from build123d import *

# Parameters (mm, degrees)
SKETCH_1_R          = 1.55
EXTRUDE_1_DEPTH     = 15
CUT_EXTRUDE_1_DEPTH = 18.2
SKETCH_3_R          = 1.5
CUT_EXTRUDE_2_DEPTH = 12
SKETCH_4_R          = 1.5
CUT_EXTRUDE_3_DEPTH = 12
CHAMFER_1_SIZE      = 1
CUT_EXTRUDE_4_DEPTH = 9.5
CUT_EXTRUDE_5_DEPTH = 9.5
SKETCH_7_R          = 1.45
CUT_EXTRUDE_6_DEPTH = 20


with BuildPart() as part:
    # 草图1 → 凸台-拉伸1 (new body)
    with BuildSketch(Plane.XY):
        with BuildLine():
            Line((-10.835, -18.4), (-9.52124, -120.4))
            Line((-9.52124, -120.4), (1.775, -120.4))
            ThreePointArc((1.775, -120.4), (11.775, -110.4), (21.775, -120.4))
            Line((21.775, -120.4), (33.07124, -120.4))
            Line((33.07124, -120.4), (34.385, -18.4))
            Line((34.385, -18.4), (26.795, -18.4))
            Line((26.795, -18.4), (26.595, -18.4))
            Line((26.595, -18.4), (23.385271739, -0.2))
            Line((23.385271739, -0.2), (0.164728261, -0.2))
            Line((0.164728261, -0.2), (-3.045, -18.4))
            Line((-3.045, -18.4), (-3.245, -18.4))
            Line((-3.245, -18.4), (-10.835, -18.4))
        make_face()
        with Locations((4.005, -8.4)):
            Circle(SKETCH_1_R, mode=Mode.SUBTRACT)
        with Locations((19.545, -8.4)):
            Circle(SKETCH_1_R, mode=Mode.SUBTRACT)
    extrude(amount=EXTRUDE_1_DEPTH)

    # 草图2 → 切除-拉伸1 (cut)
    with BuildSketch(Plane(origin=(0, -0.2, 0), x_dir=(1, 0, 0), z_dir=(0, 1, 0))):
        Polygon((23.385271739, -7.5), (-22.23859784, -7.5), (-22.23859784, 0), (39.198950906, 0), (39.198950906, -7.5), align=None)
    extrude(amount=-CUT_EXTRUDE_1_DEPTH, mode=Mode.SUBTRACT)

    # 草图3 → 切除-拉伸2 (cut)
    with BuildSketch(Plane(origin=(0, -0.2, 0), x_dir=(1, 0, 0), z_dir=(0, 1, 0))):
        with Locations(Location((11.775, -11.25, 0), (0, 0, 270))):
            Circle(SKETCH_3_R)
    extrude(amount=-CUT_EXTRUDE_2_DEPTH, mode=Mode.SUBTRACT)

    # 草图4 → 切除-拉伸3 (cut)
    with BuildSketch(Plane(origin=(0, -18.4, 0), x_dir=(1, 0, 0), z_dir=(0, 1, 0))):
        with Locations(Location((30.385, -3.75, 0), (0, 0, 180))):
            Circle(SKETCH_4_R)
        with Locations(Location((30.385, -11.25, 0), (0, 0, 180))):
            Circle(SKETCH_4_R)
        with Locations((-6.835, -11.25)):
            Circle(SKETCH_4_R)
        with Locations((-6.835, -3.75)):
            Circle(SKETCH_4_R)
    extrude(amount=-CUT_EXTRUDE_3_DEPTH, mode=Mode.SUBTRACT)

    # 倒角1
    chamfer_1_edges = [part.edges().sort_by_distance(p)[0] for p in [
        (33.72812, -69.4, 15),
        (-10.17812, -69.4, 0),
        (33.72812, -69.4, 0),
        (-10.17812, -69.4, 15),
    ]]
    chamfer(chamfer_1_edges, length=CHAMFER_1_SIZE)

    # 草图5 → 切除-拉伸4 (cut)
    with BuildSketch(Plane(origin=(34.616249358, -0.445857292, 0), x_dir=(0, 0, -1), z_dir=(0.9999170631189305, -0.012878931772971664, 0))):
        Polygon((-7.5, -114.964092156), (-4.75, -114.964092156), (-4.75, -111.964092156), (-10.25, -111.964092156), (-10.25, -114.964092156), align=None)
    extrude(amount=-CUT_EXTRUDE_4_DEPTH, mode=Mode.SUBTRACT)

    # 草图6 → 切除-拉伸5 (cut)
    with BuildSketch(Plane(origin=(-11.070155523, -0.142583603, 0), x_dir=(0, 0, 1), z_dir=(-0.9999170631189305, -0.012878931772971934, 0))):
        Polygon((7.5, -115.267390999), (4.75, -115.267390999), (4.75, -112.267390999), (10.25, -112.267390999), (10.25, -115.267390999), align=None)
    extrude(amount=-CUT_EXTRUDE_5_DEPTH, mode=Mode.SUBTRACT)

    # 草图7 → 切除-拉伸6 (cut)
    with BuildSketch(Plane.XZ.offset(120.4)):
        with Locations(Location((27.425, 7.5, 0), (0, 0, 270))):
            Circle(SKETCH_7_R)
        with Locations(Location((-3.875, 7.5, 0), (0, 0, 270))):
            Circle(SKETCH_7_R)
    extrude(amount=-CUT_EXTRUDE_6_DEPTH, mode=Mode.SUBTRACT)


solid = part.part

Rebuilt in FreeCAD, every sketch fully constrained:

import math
import FreeCAD as App
import Part
import Sketcher
Q = App.Units.Quantity


def edges_at(feature, points):
    """Names of the edges that pass closest to the given points."""
    edges = feature.Shape.Edges
    near = lambda p: min(range(len(edges)), key=lambda i: edges[i].distToShape(Part.Vertex(*p))[0])
    return sorted({f"Edge{near(p) + 1}" for p in points})

doc = App.newDocument("Part")
body = doc.addObject("PartDesign::Body", "Body")

# Sketch on XY plane
sketch1 = body.newObject("Sketcher::SketchObject", "Sketch")
sketch1.AttachmentSupport = (doc.getObject("XY_Plane"), [""])
sketch1.MapMode = "FlatFace"
sketch1.addGeometry([
    Part.LineSegment(App.Vector(-10.8, -18.4, 0), App.Vector(-9.5, -120.4, 0)),  # 0
    Part.LineSegment(App.Vector(-9.5, -120.4, 0), App.Vector(1.8, -120.4, 0)),  # 1
    Part.ArcOfCircle(Part.Circle(App.Vector(11.8, -120.4, 0), App.Vector(0, 0, 1), 10), math.radians(0), math.radians(180)),  # 2
    Part.LineSegment(App.Vector(21.8, -120.4, 0), App.Vector(33.1, -120.4, 0)),  # 3
    Part.LineSegment(App.Vector(33.1, -120.4, 0), App.Vector(34.4, -18.4, 0)),  # 4
    Part.LineSegment(App.Vector(34.4, -18.4, 0), App.Vector(26.6, -18.4, 0)),  # 5
    Part.LineSegment(App.Vector(26.6, -18.4, 0), App.Vector(23.4, -0.2, 0)),  # 6
    Part.LineSegment(App.Vector(23.4, -0.2, 0), App.Vector(0.2, -0.2, 0)),  # 7
    Part.LineSegment(App.Vector(0.2, -0.2, 0), App.Vector(-3, -18.4, 0)),  # 8
    Part.LineSegment(App.Vector(-3, -18.4, 0), App.Vector(-10.8, -18.4, 0)),  # 9
    Part.Circle(App.Vector(4, -8.4, 0), App.Vector(0, 0, 1), 1.6),  # 10
    Part.Circle(App.Vector(19.5, -8.4, 0), App.Vector(0, 0, 1), 1.6),  # 11
], False)
sketch1.addConstraint([
    Sketcher.Constraint("Coincident", 0, 2, 1, 1),
    Sketcher.Constraint("Coincident", 1, 2, 2, 2),
    Sketcher.Constraint("Coincident", 2, 1, 3, 1),
    Sketcher.Constraint("Coincident", 3, 2, 4, 1),
    Sketcher.Constraint("Coincident", 4, 2, 5, 1),
    Sketcher.Constraint("Coincident", 5, 2, 6, 1),
    Sketcher.Constraint("Coincident", 6, 2, 7, 1),
    Sketcher.Constraint("Coincident", 7, 2, 8, 1),
    Sketcher.Constraint("Coincident", 8, 2, 9, 1),
    Sketcher.Constraint("Coincident", 9, 2, 0, 1),
    Sketcher.Constraint("Horizontal", 1),
    Sketcher.Constraint("Horizontal", 3),
    Sketcher.Constraint("Horizontal", 5),
    Sketcher.Constraint("Horizontal", 7),
    Sketcher.Constraint("Horizontal", 9),
    Sketcher.Constraint("Equal", 10, 11),
    Sketcher.Constraint("Horizontal", 10, 3, 11, 3),
    Sketcher.Constraint("Horizontal", 2, 3, 0, 2),
    Sketcher.Constraint("Horizontal", 1, 2, 2, 1),
    Sketcher.Constraint("Horizontal", 5, 2, 8, 2),
    Sketcher.Constraint("Equal", 1, 3),
    Sketcher.Constraint("Equal", 5, 9),
    Sketcher.Constraint("Equal", 0, 4),
    Sketcher.Constraint("Equal", 6, 8),
    Sketcher.Constraint("Radius", 2, Q("10 mm")),
    Sketcher.Constraint("Diameter", 10, Q("3.1 mm")),
    Sketcher.Constraint("DistanceY", 2, 3, 10, 3, Q("112 mm")),
    Sketcher.Constraint("DistanceY", 4, 2, 11, 3, Q("10 mm")),
    Sketcher.Constraint("DistanceX", 5, 2, 5, 1, Q("7.79 mm")),
    Sketcher.Constraint("DistanceY", 2, 3, -1, 1, Q("120.4 mm")),
    Sketcher.Constraint("DistanceY", 6, 2, -1, 1, Q("0.2 mm")),
    Sketcher.Constraint("DistanceX", 10, 3, 2, 3, Q("7.77 mm")),
    Sketcher.Constraint("DistanceX", 10, 3, 11, 3, Q("15.54 mm")),
    Sketcher.Constraint("DistanceX", 11, 3, 4, 2, Q("14.84 mm")),
    Sketcher.Constraint("DistanceX", -1, 1, 2, 3, Q("11.775 mm")),
    Sketcher.Constraint("DistanceX", 1, 1, 1, 2, Q("11.29624 mm")),
    Sketcher.Constraint("DistanceX", 7, 2, 7, 1, Q("23.220543 mm")),
])
pad1 = body.newObject("PartDesign::Pad", "Pad")
pad1.Profile = sketch1
pad1.Length = 15

# Sketch on XZ plane
sketch2 = body.newObject("Sketcher::SketchObject", "Sketch001")
sketch2.AttachmentSupport = (doc.getObject("XZ_Plane"), [""])
sketch2.MapMode = "FlatFace"
sketch2.AttachmentOffset = App.Placement(App.Vector(0, 0, 0.2), App.Rotation())
sketch2.addGeometry([
    Part.LineSegment(App.Vector(-22, 8, 0), App.Vector(39, 8, 0)),
    Part.LineSegment(App.Vector(39, 8, 0), App.Vector(39, 0, 0)),
    Part.LineSegment(App.Vector(39, 0, 0), App.Vector(-22, 0, 0)),
    Part.LineSegment(App.Vector(-22, 0, 0), App.Vector(-22, 8, 0)),
], False)
sketch2.addConstraint([
    Sketcher.Constraint("Coincident", 0, 2, 1, 1),
    Sketcher.Constraint("Coincident", 1, 2, 2, 1),
    Sketcher.Constraint("Coincident", 2, 2, 3, 1),
    Sketcher.Constraint("Coincident", 3, 2, 0, 1),
    Sketcher.Constraint("Horizontal", 0),
    Sketcher.Constraint("Vertical", 1),
    Sketcher.Constraint("Horizontal", 2),
    Sketcher.Constraint("Vertical", 3),
    Sketcher.Constraint("PointOnObject", 1, 2, -1),
    Sketcher.Constraint("DistanceY", 1, 2, 1, 1, Q("7.5 mm")),
    Sketcher.Constraint("DistanceX", 0, 1, 0, 2, Q("61.437549 mm")),
    Sketcher.Constraint("DistanceX", -1, 1, 0, 2, Q("39.198951 mm")),
])
pocket1 = body.newObject("PartDesign::Pocket", "Pocket")
pocket1.Profile = sketch2
pocket1.Length = 18.2
pocket1.Reversed = True

# Sketch on XZ plane
sketch3 = body.newObject("Sketcher::SketchObject", "Sketch002")
sketch3.AttachmentSupport = (doc.getObject("XZ_Plane"), [""])
sketch3.MapMode = "FlatFace"
sketch3.AttachmentOffset = App.Placement(App.Vector(0, 0, 0.2), App.Rotation())
sketch3.addGeometry(Part.Circle(App.Vector(11.8, 11.2, 0), App.Vector(0, 0, 1), 1.5), False)
sketch3.addConstraint([
    Sketcher.Constraint("Diameter", 0, Q("3 mm")),
    Sketcher.Constraint("DistanceY", -1, 1, 0, 3, Q("11.25 mm")),
    Sketcher.Constraint("DistanceX", -1, 1, 0, 3, Q("11.775 mm")),
])
pocket2 = body.newObject("PartDesign::Pocket", "Pocket001")
pocket2.Profile = sketch3
pocket2.Length = 12
pocket2.Reversed = True

# Sketch on XZ plane
sketch4 = body.newObject("Sketcher::SketchObject", "Sketch003")
sketch4.AttachmentSupport = (doc.getObject("XZ_Plane"), [""])
sketch4.MapMode = "FlatFace"
sketch4.AttachmentOffset = App.Placement(App.Vector(0, 0, 18.4), App.Rotation())
sketch4.addGeometry([
    Part.Circle(App.Vector(30.4, 3.8, 0), App.Vector(0, 0, 1), 1.5),
    Part.Circle(App.Vector(30.4, 11.2, 0), App.Vector(0, 0, 1), 1.5),
    Part.Circle(App.Vector(-6.8, 11.2, 0), App.Vector(0, 0, 1), 1.5),
    Part.Circle(App.Vector(-6.8, 3.8, 0), App.Vector(0, 0, 1), 1.5),
], False)
sketch4.addConstraint([
    Sketcher.Constraint("Equal", 0, 1),
    Sketcher.Constraint("Equal", 1, 2),
    Sketcher.Constraint("Equal", 2, 3),
    Sketcher.Constraint("Horizontal", 1, 3, 2, 3),
    Sketcher.Constraint("Horizontal", 0, 3, 3, 3),
    Sketcher.Constraint("Vertical", 0, 3, 1, 3),
    Sketcher.Constraint("Vertical", 2, 3, 3, 3),
    Sketcher.Constraint("Diameter", 0, Q("3 mm")),
    Sketcher.Constraint("DistanceY", 0, 3, 1, 3, Q("7.5 mm")),
    Sketcher.Constraint("DistanceY", -1, 1, 0, 3, Q("3.75 mm")),
    Sketcher.Constraint("DistanceX", 2, 3, 1, 3, Q("37.22 mm")),
    Sketcher.Constraint("DistanceX", -1, 1, 0, 3, Q("30.385 mm")),
])
pocket3 = body.newObject("PartDesign::Pocket", "Pocket002")
pocket3.Profile = sketch4
pocket3.Length = 12
pocket3.Reversed = True
doc.recompute()

chamfer = body.newObject("PartDesign::Chamfer", "Chamfer")
chamfer.Base = (pocket3, edges_at(pocket3, [
    (33.728, -69.4, 15),
    (-10.178, -69.4, 0),
    (33.728, -69.4, 0),
    (-10.178, -69.4, 15),
]))
chamfer.Size = 1

# Sketch on an angled plane
sketch5 = body.newObject("Sketcher::SketchObject", "Sketch004")
sketch5.Placement = App.Placement(App.Vector(34.616249, -0.445857, 0), App.Rotation(App.Vector(0, 0, -1), App.Vector(0.012878932, 0.999917063, 0), App.Vector(0.999917063, -0.012878932, 0), "ZXY"))
sketch5.addGeometry([
    Part.LineSegment(App.Vector(-4.8, -115, 0), App.Vector(-4.8, -112, 0)),
    Part.LineSegment(App.Vector(-4.8, -112, 0), App.Vector(-10.2, -112, 0)),
    Part.LineSegment(App.Vector(-10.2, -112, 0), App.Vector(-10.2, -115, 0)),
    Part.LineSegment(App.Vector(-10.2, -115, 0), App.Vector(-4.8, -115, 0)),
], False)
sketch5.addConstraint([
    Sketcher.Constraint("Coincident", 0, 2, 1, 1),
    Sketcher.Constraint("Coincident", 1, 2, 2, 1),
    Sketcher.Constraint("Coincident", 2, 2, 3, 1),
    Sketcher.Constraint("Coincident", 3, 2, 0, 1),
    Sketcher.Constraint("Vertical", 0),
    Sketcher.Constraint("Horizontal", 1),
    Sketcher.Constraint("Vertical", 2),
    Sketcher.Constraint("Horizontal", 3),
    Sketcher.Constraint("DistanceY", 0, 1, 0, 2, Q("3 mm")),
    Sketcher.Constraint("DistanceX", 1, 2, 1, 1, Q("5.5 mm")),
    Sketcher.Constraint("DistanceX", 0, 2, -1, 1, Q("4.75 mm")),
    Sketcher.Constraint("DistanceY", 0, 2, -1, 1, Q("111.964092 mm")),
])
pocket4 = body.newObject("PartDesign::Pocket", "Pocket003")
pocket4.Profile = sketch5
pocket4.Length = 9.5

# Sketch on an angled plane
sketch6 = body.newObject("Sketcher::SketchObject", "Sketch005")
sketch6.Placement = App.Placement(App.Vector(-11.070156, -0.142584, 0), App.Rotation(App.Vector(0, 0, 1), App.Vector(-0.012878932, 0.999917063, 0), App.Vector(-0.999917063, -0.012878932, 0), "ZXY"))
sketch6.addGeometry([
    Part.LineSegment(App.Vector(4.8, -115.3, 0), App.Vector(10.2, -115.3, 0)),
    Part.LineSegment(App.Vector(10.2, -115.3, 0), App.Vector(10.2, -112.3, 0)),
    Part.LineSegment(App.Vector(10.2, -112.3, 0), App.Vector(4.8, -112.3, 0)),
    Part.LineSegment(App.Vector(4.8, -112.3, 0), App.Vector(4.8, -115.3, 0)),
], False)
sketch6.addConstraint([
    Sketcher.Constraint("Coincident", 0, 2, 1, 1),
    Sketcher.Constraint("Coincident", 1, 2, 2, 1),
    Sketcher.Constraint("Coincident", 2, 2, 3, 1),
    Sketcher.Constraint("Coincident", 3, 2, 0, 1),
    Sketcher.Constraint("Horizontal", 0),
    Sketcher.Constraint("Vertical", 1),
    Sketcher.Constraint("Horizontal", 2),
    Sketcher.Constraint("Vertical", 3),
    Sketcher.Constraint("DistanceY", 1, 1, 1, 2, Q("3 mm")),
    Sketcher.Constraint("DistanceX", 0, 1, 0, 2, Q("5.5 mm")),
    Sketcher.Constraint("DistanceX", -1, 1, 0, 2, Q("10.25 mm")),
    Sketcher.Constraint("DistanceY", 0, 2, -1, 1, Q("115.267391 mm")),
])
pocket5 = body.newObject("PartDesign::Pocket", "Pocket004")
pocket5.Profile = sketch6
pocket5.Length = 9.5

# Sketch on XZ plane
sketch7 = body.newObject("Sketcher::SketchObject", "Sketch006")
sketch7.AttachmentSupport = (doc.getObject("XZ_Plane"), [""])
sketch7.MapMode = "FlatFace"
sketch7.AttachmentOffset = App.Placement(App.Vector(0, 0, 120.4), App.Rotation())
sketch7.addGeometry([
    Part.Circle(App.Vector(27.4, 7.5, 0), App.Vector(0, 0, 1), 1.4),
    Part.Circle(App.Vector(-3.9, 7.5, 0), App.Vector(0, 0, 1), 1.4),
], False)
sketch7.addConstraint([
    Sketcher.Constraint("Equal", 0, 1),
    Sketcher.Constraint("Horizontal", 0, 3, 1, 3),
    Sketcher.Constraint("Diameter", 0, Q("2.9 mm")),
    Sketcher.Constraint("DistanceY", -1, 1, 0, 3, Q("7.5 mm")),
    Sketcher.Constraint("DistanceX", 1, 3, 0, 3, Q("31.3 mm")),
    Sketcher.Constraint("DistanceX", -1, 1, 0, 3, Q("27.425 mm")),
])
pocket6 = body.newObject("PartDesign::Pocket", "Pocket005")
pocket6.Profile = sketch7
pocket6.Length = 20

doc.recompute()
